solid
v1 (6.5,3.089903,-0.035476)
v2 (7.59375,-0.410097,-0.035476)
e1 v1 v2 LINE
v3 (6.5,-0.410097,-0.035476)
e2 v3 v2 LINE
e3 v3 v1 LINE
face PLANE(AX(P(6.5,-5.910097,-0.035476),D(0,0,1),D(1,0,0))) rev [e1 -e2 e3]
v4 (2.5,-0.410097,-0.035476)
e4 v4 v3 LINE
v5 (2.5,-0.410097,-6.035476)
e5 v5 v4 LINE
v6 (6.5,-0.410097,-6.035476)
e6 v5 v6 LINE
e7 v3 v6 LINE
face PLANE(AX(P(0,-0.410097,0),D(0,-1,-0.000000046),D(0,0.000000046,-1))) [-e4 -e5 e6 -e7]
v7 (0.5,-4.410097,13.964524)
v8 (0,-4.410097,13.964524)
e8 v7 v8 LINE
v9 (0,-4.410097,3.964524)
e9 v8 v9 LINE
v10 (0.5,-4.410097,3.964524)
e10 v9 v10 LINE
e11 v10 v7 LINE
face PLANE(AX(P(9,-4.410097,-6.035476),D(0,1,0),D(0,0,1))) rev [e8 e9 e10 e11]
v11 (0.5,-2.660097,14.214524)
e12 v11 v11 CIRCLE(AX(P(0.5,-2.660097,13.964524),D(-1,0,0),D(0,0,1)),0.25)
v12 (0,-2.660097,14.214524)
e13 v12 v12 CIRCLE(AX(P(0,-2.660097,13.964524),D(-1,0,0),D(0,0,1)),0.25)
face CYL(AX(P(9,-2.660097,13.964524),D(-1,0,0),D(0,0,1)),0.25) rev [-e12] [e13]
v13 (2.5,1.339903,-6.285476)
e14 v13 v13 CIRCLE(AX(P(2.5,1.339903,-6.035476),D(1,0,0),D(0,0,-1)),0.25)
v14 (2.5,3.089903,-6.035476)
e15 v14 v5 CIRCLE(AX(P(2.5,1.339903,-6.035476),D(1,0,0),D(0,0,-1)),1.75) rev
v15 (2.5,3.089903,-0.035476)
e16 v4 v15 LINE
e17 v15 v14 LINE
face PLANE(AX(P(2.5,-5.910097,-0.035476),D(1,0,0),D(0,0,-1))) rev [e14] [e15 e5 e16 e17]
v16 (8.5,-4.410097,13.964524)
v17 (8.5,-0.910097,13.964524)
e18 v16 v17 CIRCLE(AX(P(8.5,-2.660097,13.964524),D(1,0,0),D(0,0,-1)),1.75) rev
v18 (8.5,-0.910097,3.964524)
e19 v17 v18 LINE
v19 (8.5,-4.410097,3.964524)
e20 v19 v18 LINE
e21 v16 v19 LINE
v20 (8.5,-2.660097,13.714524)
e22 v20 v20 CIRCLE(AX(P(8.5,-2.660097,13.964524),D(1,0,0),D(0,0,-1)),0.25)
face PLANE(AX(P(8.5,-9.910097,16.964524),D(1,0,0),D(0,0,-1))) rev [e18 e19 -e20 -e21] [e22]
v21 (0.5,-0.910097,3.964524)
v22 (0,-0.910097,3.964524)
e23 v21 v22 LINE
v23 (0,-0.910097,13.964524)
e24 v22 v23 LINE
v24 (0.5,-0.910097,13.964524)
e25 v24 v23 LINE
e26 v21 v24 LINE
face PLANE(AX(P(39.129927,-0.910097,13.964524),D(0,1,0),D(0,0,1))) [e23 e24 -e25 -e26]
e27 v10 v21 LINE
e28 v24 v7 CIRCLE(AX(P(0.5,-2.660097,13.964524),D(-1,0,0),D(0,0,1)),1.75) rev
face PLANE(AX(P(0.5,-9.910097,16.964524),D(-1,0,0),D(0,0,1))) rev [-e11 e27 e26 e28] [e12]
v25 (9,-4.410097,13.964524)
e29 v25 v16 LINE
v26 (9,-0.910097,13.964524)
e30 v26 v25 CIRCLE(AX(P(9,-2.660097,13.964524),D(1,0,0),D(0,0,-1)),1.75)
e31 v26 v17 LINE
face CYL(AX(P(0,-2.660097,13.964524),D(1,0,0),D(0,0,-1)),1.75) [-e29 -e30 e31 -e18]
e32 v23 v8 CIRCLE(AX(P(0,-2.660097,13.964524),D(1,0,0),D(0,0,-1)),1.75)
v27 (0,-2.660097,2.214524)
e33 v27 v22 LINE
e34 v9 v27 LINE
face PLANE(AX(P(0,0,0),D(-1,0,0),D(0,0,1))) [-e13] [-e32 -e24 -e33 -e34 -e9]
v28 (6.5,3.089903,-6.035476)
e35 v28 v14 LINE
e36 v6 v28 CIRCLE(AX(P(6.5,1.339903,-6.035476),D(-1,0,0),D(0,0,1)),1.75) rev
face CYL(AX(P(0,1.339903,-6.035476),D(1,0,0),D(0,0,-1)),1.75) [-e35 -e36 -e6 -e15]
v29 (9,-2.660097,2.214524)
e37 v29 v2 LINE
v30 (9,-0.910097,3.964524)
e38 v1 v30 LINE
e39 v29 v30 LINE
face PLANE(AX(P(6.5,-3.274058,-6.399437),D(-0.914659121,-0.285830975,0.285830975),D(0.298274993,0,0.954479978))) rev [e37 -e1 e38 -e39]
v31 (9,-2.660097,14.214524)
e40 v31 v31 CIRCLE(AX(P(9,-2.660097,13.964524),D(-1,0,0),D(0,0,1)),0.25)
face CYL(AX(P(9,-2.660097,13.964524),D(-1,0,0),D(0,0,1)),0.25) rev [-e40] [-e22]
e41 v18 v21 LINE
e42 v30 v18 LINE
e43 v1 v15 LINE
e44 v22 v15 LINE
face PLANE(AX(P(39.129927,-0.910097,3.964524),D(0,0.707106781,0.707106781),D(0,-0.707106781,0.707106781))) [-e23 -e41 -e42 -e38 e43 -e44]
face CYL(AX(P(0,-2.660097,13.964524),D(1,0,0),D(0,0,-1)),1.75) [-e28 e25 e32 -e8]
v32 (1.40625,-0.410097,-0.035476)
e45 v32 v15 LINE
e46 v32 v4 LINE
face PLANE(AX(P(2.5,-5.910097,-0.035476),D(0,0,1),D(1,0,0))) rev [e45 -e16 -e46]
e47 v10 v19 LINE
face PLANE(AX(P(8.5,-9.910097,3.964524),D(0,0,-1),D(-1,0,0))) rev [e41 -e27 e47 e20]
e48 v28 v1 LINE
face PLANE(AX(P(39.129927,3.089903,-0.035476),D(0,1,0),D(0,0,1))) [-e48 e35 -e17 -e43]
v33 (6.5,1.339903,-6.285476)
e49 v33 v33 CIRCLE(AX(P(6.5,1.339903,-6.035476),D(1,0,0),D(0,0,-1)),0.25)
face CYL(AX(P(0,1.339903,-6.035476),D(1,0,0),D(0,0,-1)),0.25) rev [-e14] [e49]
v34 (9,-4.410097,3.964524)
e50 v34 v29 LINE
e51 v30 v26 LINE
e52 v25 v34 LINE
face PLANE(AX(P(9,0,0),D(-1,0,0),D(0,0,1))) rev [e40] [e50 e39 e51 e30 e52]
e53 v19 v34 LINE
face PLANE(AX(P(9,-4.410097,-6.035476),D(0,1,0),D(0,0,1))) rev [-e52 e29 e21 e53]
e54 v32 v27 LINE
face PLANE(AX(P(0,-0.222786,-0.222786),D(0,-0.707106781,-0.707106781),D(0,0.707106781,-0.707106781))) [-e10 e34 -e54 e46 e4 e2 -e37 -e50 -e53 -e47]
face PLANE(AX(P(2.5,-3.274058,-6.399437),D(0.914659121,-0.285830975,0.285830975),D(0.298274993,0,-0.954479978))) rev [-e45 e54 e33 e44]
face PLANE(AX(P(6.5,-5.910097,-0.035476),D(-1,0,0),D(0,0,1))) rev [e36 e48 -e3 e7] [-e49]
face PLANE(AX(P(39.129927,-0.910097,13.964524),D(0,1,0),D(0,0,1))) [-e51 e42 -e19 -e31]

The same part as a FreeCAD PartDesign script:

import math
import FreeCAD as App
import Part
import Sketcher
from FreeCAD import Vector
Q = App.Units.Quantity


def add_polygon(sketch, points):
    """Adds a closed chain of lines whose ends are joined by coincident constraints."""
    first, n = sketch.GeometryCount, len(points)
    for a, b in zip(points, points[1:] + points[:1]):
        sketch.addGeometry(Part.LineSegment(App.Vector(*a, 0), App.Vector(*b, 0)), False)
    for i in range(n):
        sketch.addConstraint(Sketcher.Constraint("Coincident", first + i, 2, first + (i + 1) % n, 1))

doc = App.newDocument("Part")
body = doc.addObject("PartDesign::Body", "Body")

# Sketch on YZ plane
sketch1 = body.newObject("Sketcher::SketchObject", "Sketch")
sketch1.AttachmentSupport = (doc.getObject("YZ_Plane"), [""])
sketch1.MapMode = "FlatFace"
add_polygon(sketch1, [(6, 14), (-4, 14), (-4, -6), (6, -6)])  # lines 0-3
sketch1.addConstraint([
    Sketcher.Constraint("Horizontal", 0),
    Sketcher.Constraint("Vertical", 1),
    Sketcher.Constraint("Horizontal", 2),
    Sketcher.Constraint("Vertical", 3),
    Sketcher.Constraint("DistanceX", 0, 2, 0, 1, Q("10 mm")),
    Sketcher.Constraint("DistanceY", 1, 2, 1, 1, Q("20 mm")),
    Sketcher.Constraint("DistanceX", 0, 2, -1, 1, Q("4.410097 mm")),
    Sketcher.Constraint("DistanceY", -1, 1, 0, 2, Q("13.964524 mm")),
])
pad1 = body.newObject("PartDesign::Pad", "Pad")
pad1.Profile = sketch1
pad1.Length = 9

# Sketch on YZ plane
sketch2 = body.newObject("Sketcher::SketchObject", "Sketch001")
sketch2.AttachmentSupport = (doc.getObject("YZ_Plane"), [""])
sketch2.MapMode = "FlatFace"
sketch2.AttachmentOffset = App.Placement(Vector(0, 0, 9), App.Rotation())
add_polygon(sketch2, [(-0.4, 0), (-4.4, 4), (-4.4, -6), (-0.4, -6)])  # lines 0-3
sketch2.addConstraint([
    Sketcher.Constraint("Vertical", 1),
    Sketcher.Constraint("Horizontal", 2),
    Sketcher.Constraint("Vertical", 3),
    Sketcher.Constraint("DistanceX", 2, 1, 2, 2, Q("4 mm")),
    Sketcher.Constraint("DistanceY", 1, 2, 1, 1, Q("10 mm")),
    Sketcher.Constraint("DistanceY", 3, 1, 3, 2, Q("6 mm")),
    Sketcher.Constraint("DistanceX", 0, 2, -1, 1, Q("4.410097 mm")),
    Sketcher.Constraint("DistanceY", -1, 1, 0, 2, Q("3.964524 mm")),
])
pocket1 = body.newObject("PartDesign::Pocket", "Pocket")
pocket1.Profile = sketch2
pocket1.Length = 9

# Sketch on YZ plane
sketch3 = body.newObject("Sketcher::SketchObject", "Sketch002")
sketch3.AttachmentSupport = (doc.getObject("YZ_Plane"), [""])
sketch3.MapMode = "FlatFace"
sketch3.AttachmentOffset = App.Placement(Vector(0, 0, 9), App.Rotation())
add_polygon(sketch3, [(-1, 67), (-1, 4), (3, 0), (3, -59), (108, -55), (104, 70)])  # lines 0-5
sketch3.addConstraint([
    Sketcher.Constraint("Vertical", 0),
    Sketcher.Constraint("Vertical", 2),
    Sketcher.Constraint("Perpendicular", 3, 4),
    Sketcher.Constraint("Perpendicular", 4, 5),
    Sketcher.Constraint("Equal", 3, 5),
    Sketcher.Constraint("Angle", 1, Q("-45 deg")),
    Sketcher.Constraint("DistanceX", 0, 2, 1, 2, Q("4 mm")),
    Sketcher.Constraint("DistanceY", 0, 2, 0, 1, Q("62.720019 mm")),
    Sketcher.Constraint("DistanceY", 2, 2, 2, 1, Q("58.720019 mm")),
    Sketcher.Constraint("DistanceY", 3, 2, 5, 2, Q("122.079501 mm")),
    Sketcher.Constraint("DistanceY", -1, 1, 4, 2, Q("70.04508 mm")),
    Sketcher.Constraint("DistanceX", 0, 2, -1, 1, Q("0.910097 mm")),
])
pocket2 = body.newObject("PartDesign::Pocket", "Pocket001")
pocket2.Profile = sketch3
pocket2.Type = "ThroughAll"
pocket2.Midplane = True

# Sketch on YZ plane
sketch4 = body.newObject("Sketcher::SketchObject", "Sketch003")
sketch4.AttachmentSupport = (doc.getObject("YZ_Plane"), [""])
sketch4.MapMode = "FlatFace"
sketch4.AttachmentOffset = App.Placement(Vector(0, 0, 9), App.Rotation())
sketch4.addGeometry([
    Part.LineSegment(Vector(-4.4, 14, 0), Vector(-0.9, 14, 0)),
    Part.ArcOfCircle(Part.Circle(Vector(-2.7, 14, 0), Vector(0, 0, 1), 1.8), math.radians(0), math.radians(180)),
], False)
sketch4.addConstraint([
    Sketcher.Constraint("Coincident", 0, 1, 1, 2),
    Sketcher.Constraint("Coincident", 1, 1, 0, 2),
    Sketcher.Constraint("Horizontal", 0),
    Sketcher.Constraint("Horizontal", 1, 3, 0, 1),
    Sketcher.Constraint("Radius", 1, Q("1.75 mm")),
    Sketcher.Constraint("DistanceX", 1, 3, -1, 1, Q("2.660097 mm")),
    Sketcher.Constraint("DistanceY", -1, 1, 1, 3, Q("13.964524 mm")),
])
pad2 = body.newObject("PartDesign::Pad", "Pad001")
pad2.Profile = sketch4
pad2.Length = 9
pad2.Reversed = True

# Sketch on YZ plane
sketch5 = body.newObject("Sketcher::SketchObject", "Sketch004")
sketch5.AttachmentSupport = (doc.getObject("YZ_Plane"), [""])
sketch5.MapMode = "FlatFace"
sketch5.AttachmentOffset = App.Placement(Vector(0, 0, 9), App.Rotation())
sketch5.addGeometry([
    Part.LineSegment(Vector(3.1, -6, 0), Vector(-0.4, -6, 0)),
    Part.ArcOfCircle(Part.Circle(Vector(1.3, -6, 0), Vector(0, 0, 1), 1.8), math.radians(180), math.radians(360)),
], False)
sketch5.addConstraint([
    Sketcher.Constraint("Coincident", 0, 1, 1, 2),
    Sketcher.Constraint("Coincident", 1, 1, 0, 2),
    Sketcher.Constraint("Horizontal", 0),
    Sketcher.Constraint("Horizontal", 1, 3, 0, 1),
    Sketcher.Constraint("Radius", 1, Q("1.75 mm")),
    Sketcher.Constraint("DistanceX", -1, 1, 1, 3, Q("1.339903 mm")),
    Sketcher.Constraint("DistanceY", 1, 3, -1, 1, Q("6.035476 mm")),
])
pad3 = body.newObject("PartDesign::Pad", "Pad002")
pad3.Profile = sketch5
pad3.Length = 9
pad3.Reversed = True

# Sketch on XZ plane
sketch6 = body.newObject("Sketcher::SketchObject", "Sketch005")
sketch6.AttachmentSupport = (doc.getObject("XZ_Plane"), [""])
sketch6.MapMode = "FlatFace"
sketch6.AttachmentOffset = App.Placement(Vector(0, 0, 0.910097), App.Rotation())
add_polygon(sketch6, [(0, 4), (0, 17), (8, 17), (8, 4)])  # lines 0-3
sketch6.addConstraint([
    Sketcher.Constraint("Vertical", 0),
    Sketcher.Constraint("Horizontal", 1),
    Sketcher.Constraint("Vertical", 2),
    Sketcher.Constraint("Horizontal", 3),
    Sketcher.Constraint("DistanceX", 1, 1, 1, 2, Q("8 mm")),
    Sketcher.Constraint("DistanceY", 0, 1, 0, 2, Q("13 mm")),
    Sketcher.Constraint("DistanceX", -1, 1, 0, 2, Q("0.5 mm")),
    Sketcher.Constraint("DistanceY", -1, 1, 0, 2, Q("16.964524 mm")),
])
pocket3 = body.newObject("PartDesign::Pocket", "Pocket002")
pocket3.Profile = sketch6
pocket3.Length = 9
pocket3.Reversed = True

# Sketch on XZ plane
sketch7 = body.newObject("Sketcher::SketchObject", "Sketch006")
sketch7.AttachmentSupport = (doc.getObject("XZ_Plane"), [""])
sketch7.MapMode = "FlatFace"
sketch7.AttachmentOffset = App.Placement(Vector(0, 0, -3.089903), App.Rotation())
add_polygon(sketch7, [(6.5, -12), (6.5, 0), (9, 0), (9, -12)])  # lines 0-3
sketch7.addConstraint([
    Sketcher.Constraint("Vertical", 0),
    Sketcher.Constraint("Horizontal", 1),
    Sketcher.Constraint("Vertical", 2),
    Sketcher.Constraint("Horizontal", 3),
    Sketcher.Constraint("DistanceY", 0, 1, 0, 2, Q("12 mm")),
    Sketcher.Constraint("DistanceX", 1, 1, 1, 2, Q("2.5 mm")),
    Sketcher.Constraint("DistanceX", -1, 1, 1, 2, Q("9 mm")),
    Sketcher.Constraint("DistanceY", 0, 2, -1, 1, Q("0.035476 mm")),
])
pocket4 = body.newObject("PartDesign::Pocket", "Pocket003")
pocket4.Profile = sketch7
pocket4.Length = 9
pocket4.Reversed = True

# Sketch on XZ plane
sketch8 = body.newObject("Sketcher::SketchObject", "Sketch007")
sketch8.AttachmentSupport = (doc.getObject("XZ_Plane"), [""])
sketch8.MapMode = "FlatFace"
sketch8.AttachmentOffset = App.Placement(Vector(0, 0, -3.089903), App.Rotation())
add_polygon(sketch8, [(0, -7.8), (0, 0), (2.5, 0), (2.5, -7.8)])  # lines 0-3
sketch8.addConstraint([
    Sketcher.Constraint("Vertical", 0),
    Sketcher.Constraint("Horizontal", 1),
    Sketcher.Constraint("Vertical", 2),
    Sketcher.Constraint("Horizontal", 3),
    Sketcher.Constraint("PointOnObject", 0, 2, -2),
    Sketcher.Constraint("DistanceX", 1, 1, 1, 2, Q("2.5 mm")),
    Sketcher.Constraint("DistanceY", 0, 1, 0, 2, Q("7.75 mm")),
    Sketcher.Constraint("DistanceY", 0, 2, -1, 1, Q("0.035476 mm")),
])
pocket5 = body.newObject("PartDesign::Pocket", "Pocket004")
pocket5.Profile = sketch8
pocket5.Length = 9
pocket5.Reversed = True

# Sketch on an angled plane
sketch9 = body.newObject("Sketcher::SketchObject", "Sketch008")
sketch9.Placement = App.Placement(Vector(0, 1.527214, 1.527214), App.Rotation(Vector(1, 0, 0), Vector(0, 0.707106781, -0.707106781), Vector(0, 0.707106781, 0.707106781), "ZXY"))
add_polygon(sketch9, [(0, -3), (2, 2), (-4, 5), (-7, -1)])  # lines 0-3
sketch9.addConstraint([
    Sketcher.Constraint("PointOnObject", 3, 2, -2),
    Sketcher.Constraint("Parallel", 0, 2),
    Sketcher.Constraint("Parallel", 1, 3),
    Sketcher.Constraint("DistanceX", -1, 1, 0, 2, Q("2.5 mm")),
    Sketcher.Constraint("Distance", 0, Q("6.184658 mm")),
    Sketcher.Constraint("DistanceX", 1, 2, -1, 1, Q("4.372939 mm")),
    Sketcher.Constraint("DistanceY", 0, 2, 1, 2, Q("2.82981 mm")),
    Sketcher.Constraint("DistanceY", -1, 1, 0, 2, Q("2.209977 mm")),
])
pocket6 = body.newObject("PartDesign::Pocket", "Pocket005")
pocket6.Profile = sketch9
pocket6.Length = 9

# Sketch on an angled plane
sketch10 = body.newObject("Sketcher::SketchObject", "Sketch009")
sketch10.Placement = App.Placement(Vector(0, 1.527214, 1.527214), App.Rotation(Vector(1, 0, 0), Vector(0, 0.707106781, -0.707106781), Vector(0, 0.707106781, 0.707106781), "ZXY"))
add_polygon(sketch10, [(6, 2), (9, -3), (13, 0), (10, 6)])  # lines 0-3
sketch10.addConstraint([
    Sketcher.Constraint("PointOnObject", 1, 2, -1),
    Sketcher.Constraint("Parallel", 0, 2),
    Sketcher.Constraint("Parallel", 1, 3),
    Sketcher.Constraint("DistanceX", -1, 1, 0, 2, Q("9 mm")),
    Sketcher.Constraint("DistanceX", -1, 1, 3, 2, Q("6.5 mm")),
    Sketcher.Constraint("Distance", 0, Q("6.184658 mm")),
    Sketcher.Constraint("Distance", 1, Q("5.037311 mm")),
    Sketcher.Constraint("DistanceY", 0, 2, 2, 2, Q("9.103732 mm")),
])
pocket7 = body.newObject("PartDesign::Pocket", "Pocket006")
pocket7.Profile = sketch10
pocket7.Length = 9

# Sketch on YZ plane
sketch11 = body.newObject("Sketcher::SketchObject", "Sketch010")
sketch11.AttachmentSupport = (doc.getObject("YZ_Plane"), [""])
sketch11.MapMode = "FlatFace"
sketch11.AttachmentOffset = App.Placement(Vector(0, 0, 6.5), App.Rotation())
sketch11.addGeometry(Part.Circle(Vector(1.34, -6.04, 0), Vector(0, 0, 1), 0.25), False)
sketch11.addConstraint([
    Sketcher.Constraint("Diameter", 0, Q("0.5 mm")),
    Sketcher.Constraint("DistanceX", -1, 1, 0, 3, Q("1.339903 mm")),
    Sketcher.Constraint("DistanceY", 0, 3, -1, 1, Q("6.035476 mm")),
])
pocket8 = body.newObject("PartDesign::Pocket", "Pocket007")
pocket8.Profile = sketch11
pocket8.Type = "ThroughAll"

# Sketch on YZ plane
sketch12 = body.newObject("Sketcher::SketchObject", "Sketch011")
sketch12.AttachmentSupport = (doc.getObject("YZ_Plane"), [""])
sketch12.MapMode = "FlatFace"
sketch12.addGeometry(Part.Circle(Vector(-2.66, 13.96, 0), Vector(0, 0, 1), 0.25), False)
sketch12.addConstraint([
    Sketcher.Constraint("Diameter", 0, Q("0.5 mm")),
    Sketcher.Constraint("DistanceX", 0, 3, -1, 1, Q("2.660097 mm")),
    Sketcher.Constraint("DistanceY", -1, 1, 0, 3, Q("13.964524 mm")),
])
pocket9 = body.newObject("PartDesign::Pocket", "Pocket008")
pocket9.Profile = sketch12
pocket9.Type = "ThroughAll"
pocket9.Reversed = True

doc.recompute()
